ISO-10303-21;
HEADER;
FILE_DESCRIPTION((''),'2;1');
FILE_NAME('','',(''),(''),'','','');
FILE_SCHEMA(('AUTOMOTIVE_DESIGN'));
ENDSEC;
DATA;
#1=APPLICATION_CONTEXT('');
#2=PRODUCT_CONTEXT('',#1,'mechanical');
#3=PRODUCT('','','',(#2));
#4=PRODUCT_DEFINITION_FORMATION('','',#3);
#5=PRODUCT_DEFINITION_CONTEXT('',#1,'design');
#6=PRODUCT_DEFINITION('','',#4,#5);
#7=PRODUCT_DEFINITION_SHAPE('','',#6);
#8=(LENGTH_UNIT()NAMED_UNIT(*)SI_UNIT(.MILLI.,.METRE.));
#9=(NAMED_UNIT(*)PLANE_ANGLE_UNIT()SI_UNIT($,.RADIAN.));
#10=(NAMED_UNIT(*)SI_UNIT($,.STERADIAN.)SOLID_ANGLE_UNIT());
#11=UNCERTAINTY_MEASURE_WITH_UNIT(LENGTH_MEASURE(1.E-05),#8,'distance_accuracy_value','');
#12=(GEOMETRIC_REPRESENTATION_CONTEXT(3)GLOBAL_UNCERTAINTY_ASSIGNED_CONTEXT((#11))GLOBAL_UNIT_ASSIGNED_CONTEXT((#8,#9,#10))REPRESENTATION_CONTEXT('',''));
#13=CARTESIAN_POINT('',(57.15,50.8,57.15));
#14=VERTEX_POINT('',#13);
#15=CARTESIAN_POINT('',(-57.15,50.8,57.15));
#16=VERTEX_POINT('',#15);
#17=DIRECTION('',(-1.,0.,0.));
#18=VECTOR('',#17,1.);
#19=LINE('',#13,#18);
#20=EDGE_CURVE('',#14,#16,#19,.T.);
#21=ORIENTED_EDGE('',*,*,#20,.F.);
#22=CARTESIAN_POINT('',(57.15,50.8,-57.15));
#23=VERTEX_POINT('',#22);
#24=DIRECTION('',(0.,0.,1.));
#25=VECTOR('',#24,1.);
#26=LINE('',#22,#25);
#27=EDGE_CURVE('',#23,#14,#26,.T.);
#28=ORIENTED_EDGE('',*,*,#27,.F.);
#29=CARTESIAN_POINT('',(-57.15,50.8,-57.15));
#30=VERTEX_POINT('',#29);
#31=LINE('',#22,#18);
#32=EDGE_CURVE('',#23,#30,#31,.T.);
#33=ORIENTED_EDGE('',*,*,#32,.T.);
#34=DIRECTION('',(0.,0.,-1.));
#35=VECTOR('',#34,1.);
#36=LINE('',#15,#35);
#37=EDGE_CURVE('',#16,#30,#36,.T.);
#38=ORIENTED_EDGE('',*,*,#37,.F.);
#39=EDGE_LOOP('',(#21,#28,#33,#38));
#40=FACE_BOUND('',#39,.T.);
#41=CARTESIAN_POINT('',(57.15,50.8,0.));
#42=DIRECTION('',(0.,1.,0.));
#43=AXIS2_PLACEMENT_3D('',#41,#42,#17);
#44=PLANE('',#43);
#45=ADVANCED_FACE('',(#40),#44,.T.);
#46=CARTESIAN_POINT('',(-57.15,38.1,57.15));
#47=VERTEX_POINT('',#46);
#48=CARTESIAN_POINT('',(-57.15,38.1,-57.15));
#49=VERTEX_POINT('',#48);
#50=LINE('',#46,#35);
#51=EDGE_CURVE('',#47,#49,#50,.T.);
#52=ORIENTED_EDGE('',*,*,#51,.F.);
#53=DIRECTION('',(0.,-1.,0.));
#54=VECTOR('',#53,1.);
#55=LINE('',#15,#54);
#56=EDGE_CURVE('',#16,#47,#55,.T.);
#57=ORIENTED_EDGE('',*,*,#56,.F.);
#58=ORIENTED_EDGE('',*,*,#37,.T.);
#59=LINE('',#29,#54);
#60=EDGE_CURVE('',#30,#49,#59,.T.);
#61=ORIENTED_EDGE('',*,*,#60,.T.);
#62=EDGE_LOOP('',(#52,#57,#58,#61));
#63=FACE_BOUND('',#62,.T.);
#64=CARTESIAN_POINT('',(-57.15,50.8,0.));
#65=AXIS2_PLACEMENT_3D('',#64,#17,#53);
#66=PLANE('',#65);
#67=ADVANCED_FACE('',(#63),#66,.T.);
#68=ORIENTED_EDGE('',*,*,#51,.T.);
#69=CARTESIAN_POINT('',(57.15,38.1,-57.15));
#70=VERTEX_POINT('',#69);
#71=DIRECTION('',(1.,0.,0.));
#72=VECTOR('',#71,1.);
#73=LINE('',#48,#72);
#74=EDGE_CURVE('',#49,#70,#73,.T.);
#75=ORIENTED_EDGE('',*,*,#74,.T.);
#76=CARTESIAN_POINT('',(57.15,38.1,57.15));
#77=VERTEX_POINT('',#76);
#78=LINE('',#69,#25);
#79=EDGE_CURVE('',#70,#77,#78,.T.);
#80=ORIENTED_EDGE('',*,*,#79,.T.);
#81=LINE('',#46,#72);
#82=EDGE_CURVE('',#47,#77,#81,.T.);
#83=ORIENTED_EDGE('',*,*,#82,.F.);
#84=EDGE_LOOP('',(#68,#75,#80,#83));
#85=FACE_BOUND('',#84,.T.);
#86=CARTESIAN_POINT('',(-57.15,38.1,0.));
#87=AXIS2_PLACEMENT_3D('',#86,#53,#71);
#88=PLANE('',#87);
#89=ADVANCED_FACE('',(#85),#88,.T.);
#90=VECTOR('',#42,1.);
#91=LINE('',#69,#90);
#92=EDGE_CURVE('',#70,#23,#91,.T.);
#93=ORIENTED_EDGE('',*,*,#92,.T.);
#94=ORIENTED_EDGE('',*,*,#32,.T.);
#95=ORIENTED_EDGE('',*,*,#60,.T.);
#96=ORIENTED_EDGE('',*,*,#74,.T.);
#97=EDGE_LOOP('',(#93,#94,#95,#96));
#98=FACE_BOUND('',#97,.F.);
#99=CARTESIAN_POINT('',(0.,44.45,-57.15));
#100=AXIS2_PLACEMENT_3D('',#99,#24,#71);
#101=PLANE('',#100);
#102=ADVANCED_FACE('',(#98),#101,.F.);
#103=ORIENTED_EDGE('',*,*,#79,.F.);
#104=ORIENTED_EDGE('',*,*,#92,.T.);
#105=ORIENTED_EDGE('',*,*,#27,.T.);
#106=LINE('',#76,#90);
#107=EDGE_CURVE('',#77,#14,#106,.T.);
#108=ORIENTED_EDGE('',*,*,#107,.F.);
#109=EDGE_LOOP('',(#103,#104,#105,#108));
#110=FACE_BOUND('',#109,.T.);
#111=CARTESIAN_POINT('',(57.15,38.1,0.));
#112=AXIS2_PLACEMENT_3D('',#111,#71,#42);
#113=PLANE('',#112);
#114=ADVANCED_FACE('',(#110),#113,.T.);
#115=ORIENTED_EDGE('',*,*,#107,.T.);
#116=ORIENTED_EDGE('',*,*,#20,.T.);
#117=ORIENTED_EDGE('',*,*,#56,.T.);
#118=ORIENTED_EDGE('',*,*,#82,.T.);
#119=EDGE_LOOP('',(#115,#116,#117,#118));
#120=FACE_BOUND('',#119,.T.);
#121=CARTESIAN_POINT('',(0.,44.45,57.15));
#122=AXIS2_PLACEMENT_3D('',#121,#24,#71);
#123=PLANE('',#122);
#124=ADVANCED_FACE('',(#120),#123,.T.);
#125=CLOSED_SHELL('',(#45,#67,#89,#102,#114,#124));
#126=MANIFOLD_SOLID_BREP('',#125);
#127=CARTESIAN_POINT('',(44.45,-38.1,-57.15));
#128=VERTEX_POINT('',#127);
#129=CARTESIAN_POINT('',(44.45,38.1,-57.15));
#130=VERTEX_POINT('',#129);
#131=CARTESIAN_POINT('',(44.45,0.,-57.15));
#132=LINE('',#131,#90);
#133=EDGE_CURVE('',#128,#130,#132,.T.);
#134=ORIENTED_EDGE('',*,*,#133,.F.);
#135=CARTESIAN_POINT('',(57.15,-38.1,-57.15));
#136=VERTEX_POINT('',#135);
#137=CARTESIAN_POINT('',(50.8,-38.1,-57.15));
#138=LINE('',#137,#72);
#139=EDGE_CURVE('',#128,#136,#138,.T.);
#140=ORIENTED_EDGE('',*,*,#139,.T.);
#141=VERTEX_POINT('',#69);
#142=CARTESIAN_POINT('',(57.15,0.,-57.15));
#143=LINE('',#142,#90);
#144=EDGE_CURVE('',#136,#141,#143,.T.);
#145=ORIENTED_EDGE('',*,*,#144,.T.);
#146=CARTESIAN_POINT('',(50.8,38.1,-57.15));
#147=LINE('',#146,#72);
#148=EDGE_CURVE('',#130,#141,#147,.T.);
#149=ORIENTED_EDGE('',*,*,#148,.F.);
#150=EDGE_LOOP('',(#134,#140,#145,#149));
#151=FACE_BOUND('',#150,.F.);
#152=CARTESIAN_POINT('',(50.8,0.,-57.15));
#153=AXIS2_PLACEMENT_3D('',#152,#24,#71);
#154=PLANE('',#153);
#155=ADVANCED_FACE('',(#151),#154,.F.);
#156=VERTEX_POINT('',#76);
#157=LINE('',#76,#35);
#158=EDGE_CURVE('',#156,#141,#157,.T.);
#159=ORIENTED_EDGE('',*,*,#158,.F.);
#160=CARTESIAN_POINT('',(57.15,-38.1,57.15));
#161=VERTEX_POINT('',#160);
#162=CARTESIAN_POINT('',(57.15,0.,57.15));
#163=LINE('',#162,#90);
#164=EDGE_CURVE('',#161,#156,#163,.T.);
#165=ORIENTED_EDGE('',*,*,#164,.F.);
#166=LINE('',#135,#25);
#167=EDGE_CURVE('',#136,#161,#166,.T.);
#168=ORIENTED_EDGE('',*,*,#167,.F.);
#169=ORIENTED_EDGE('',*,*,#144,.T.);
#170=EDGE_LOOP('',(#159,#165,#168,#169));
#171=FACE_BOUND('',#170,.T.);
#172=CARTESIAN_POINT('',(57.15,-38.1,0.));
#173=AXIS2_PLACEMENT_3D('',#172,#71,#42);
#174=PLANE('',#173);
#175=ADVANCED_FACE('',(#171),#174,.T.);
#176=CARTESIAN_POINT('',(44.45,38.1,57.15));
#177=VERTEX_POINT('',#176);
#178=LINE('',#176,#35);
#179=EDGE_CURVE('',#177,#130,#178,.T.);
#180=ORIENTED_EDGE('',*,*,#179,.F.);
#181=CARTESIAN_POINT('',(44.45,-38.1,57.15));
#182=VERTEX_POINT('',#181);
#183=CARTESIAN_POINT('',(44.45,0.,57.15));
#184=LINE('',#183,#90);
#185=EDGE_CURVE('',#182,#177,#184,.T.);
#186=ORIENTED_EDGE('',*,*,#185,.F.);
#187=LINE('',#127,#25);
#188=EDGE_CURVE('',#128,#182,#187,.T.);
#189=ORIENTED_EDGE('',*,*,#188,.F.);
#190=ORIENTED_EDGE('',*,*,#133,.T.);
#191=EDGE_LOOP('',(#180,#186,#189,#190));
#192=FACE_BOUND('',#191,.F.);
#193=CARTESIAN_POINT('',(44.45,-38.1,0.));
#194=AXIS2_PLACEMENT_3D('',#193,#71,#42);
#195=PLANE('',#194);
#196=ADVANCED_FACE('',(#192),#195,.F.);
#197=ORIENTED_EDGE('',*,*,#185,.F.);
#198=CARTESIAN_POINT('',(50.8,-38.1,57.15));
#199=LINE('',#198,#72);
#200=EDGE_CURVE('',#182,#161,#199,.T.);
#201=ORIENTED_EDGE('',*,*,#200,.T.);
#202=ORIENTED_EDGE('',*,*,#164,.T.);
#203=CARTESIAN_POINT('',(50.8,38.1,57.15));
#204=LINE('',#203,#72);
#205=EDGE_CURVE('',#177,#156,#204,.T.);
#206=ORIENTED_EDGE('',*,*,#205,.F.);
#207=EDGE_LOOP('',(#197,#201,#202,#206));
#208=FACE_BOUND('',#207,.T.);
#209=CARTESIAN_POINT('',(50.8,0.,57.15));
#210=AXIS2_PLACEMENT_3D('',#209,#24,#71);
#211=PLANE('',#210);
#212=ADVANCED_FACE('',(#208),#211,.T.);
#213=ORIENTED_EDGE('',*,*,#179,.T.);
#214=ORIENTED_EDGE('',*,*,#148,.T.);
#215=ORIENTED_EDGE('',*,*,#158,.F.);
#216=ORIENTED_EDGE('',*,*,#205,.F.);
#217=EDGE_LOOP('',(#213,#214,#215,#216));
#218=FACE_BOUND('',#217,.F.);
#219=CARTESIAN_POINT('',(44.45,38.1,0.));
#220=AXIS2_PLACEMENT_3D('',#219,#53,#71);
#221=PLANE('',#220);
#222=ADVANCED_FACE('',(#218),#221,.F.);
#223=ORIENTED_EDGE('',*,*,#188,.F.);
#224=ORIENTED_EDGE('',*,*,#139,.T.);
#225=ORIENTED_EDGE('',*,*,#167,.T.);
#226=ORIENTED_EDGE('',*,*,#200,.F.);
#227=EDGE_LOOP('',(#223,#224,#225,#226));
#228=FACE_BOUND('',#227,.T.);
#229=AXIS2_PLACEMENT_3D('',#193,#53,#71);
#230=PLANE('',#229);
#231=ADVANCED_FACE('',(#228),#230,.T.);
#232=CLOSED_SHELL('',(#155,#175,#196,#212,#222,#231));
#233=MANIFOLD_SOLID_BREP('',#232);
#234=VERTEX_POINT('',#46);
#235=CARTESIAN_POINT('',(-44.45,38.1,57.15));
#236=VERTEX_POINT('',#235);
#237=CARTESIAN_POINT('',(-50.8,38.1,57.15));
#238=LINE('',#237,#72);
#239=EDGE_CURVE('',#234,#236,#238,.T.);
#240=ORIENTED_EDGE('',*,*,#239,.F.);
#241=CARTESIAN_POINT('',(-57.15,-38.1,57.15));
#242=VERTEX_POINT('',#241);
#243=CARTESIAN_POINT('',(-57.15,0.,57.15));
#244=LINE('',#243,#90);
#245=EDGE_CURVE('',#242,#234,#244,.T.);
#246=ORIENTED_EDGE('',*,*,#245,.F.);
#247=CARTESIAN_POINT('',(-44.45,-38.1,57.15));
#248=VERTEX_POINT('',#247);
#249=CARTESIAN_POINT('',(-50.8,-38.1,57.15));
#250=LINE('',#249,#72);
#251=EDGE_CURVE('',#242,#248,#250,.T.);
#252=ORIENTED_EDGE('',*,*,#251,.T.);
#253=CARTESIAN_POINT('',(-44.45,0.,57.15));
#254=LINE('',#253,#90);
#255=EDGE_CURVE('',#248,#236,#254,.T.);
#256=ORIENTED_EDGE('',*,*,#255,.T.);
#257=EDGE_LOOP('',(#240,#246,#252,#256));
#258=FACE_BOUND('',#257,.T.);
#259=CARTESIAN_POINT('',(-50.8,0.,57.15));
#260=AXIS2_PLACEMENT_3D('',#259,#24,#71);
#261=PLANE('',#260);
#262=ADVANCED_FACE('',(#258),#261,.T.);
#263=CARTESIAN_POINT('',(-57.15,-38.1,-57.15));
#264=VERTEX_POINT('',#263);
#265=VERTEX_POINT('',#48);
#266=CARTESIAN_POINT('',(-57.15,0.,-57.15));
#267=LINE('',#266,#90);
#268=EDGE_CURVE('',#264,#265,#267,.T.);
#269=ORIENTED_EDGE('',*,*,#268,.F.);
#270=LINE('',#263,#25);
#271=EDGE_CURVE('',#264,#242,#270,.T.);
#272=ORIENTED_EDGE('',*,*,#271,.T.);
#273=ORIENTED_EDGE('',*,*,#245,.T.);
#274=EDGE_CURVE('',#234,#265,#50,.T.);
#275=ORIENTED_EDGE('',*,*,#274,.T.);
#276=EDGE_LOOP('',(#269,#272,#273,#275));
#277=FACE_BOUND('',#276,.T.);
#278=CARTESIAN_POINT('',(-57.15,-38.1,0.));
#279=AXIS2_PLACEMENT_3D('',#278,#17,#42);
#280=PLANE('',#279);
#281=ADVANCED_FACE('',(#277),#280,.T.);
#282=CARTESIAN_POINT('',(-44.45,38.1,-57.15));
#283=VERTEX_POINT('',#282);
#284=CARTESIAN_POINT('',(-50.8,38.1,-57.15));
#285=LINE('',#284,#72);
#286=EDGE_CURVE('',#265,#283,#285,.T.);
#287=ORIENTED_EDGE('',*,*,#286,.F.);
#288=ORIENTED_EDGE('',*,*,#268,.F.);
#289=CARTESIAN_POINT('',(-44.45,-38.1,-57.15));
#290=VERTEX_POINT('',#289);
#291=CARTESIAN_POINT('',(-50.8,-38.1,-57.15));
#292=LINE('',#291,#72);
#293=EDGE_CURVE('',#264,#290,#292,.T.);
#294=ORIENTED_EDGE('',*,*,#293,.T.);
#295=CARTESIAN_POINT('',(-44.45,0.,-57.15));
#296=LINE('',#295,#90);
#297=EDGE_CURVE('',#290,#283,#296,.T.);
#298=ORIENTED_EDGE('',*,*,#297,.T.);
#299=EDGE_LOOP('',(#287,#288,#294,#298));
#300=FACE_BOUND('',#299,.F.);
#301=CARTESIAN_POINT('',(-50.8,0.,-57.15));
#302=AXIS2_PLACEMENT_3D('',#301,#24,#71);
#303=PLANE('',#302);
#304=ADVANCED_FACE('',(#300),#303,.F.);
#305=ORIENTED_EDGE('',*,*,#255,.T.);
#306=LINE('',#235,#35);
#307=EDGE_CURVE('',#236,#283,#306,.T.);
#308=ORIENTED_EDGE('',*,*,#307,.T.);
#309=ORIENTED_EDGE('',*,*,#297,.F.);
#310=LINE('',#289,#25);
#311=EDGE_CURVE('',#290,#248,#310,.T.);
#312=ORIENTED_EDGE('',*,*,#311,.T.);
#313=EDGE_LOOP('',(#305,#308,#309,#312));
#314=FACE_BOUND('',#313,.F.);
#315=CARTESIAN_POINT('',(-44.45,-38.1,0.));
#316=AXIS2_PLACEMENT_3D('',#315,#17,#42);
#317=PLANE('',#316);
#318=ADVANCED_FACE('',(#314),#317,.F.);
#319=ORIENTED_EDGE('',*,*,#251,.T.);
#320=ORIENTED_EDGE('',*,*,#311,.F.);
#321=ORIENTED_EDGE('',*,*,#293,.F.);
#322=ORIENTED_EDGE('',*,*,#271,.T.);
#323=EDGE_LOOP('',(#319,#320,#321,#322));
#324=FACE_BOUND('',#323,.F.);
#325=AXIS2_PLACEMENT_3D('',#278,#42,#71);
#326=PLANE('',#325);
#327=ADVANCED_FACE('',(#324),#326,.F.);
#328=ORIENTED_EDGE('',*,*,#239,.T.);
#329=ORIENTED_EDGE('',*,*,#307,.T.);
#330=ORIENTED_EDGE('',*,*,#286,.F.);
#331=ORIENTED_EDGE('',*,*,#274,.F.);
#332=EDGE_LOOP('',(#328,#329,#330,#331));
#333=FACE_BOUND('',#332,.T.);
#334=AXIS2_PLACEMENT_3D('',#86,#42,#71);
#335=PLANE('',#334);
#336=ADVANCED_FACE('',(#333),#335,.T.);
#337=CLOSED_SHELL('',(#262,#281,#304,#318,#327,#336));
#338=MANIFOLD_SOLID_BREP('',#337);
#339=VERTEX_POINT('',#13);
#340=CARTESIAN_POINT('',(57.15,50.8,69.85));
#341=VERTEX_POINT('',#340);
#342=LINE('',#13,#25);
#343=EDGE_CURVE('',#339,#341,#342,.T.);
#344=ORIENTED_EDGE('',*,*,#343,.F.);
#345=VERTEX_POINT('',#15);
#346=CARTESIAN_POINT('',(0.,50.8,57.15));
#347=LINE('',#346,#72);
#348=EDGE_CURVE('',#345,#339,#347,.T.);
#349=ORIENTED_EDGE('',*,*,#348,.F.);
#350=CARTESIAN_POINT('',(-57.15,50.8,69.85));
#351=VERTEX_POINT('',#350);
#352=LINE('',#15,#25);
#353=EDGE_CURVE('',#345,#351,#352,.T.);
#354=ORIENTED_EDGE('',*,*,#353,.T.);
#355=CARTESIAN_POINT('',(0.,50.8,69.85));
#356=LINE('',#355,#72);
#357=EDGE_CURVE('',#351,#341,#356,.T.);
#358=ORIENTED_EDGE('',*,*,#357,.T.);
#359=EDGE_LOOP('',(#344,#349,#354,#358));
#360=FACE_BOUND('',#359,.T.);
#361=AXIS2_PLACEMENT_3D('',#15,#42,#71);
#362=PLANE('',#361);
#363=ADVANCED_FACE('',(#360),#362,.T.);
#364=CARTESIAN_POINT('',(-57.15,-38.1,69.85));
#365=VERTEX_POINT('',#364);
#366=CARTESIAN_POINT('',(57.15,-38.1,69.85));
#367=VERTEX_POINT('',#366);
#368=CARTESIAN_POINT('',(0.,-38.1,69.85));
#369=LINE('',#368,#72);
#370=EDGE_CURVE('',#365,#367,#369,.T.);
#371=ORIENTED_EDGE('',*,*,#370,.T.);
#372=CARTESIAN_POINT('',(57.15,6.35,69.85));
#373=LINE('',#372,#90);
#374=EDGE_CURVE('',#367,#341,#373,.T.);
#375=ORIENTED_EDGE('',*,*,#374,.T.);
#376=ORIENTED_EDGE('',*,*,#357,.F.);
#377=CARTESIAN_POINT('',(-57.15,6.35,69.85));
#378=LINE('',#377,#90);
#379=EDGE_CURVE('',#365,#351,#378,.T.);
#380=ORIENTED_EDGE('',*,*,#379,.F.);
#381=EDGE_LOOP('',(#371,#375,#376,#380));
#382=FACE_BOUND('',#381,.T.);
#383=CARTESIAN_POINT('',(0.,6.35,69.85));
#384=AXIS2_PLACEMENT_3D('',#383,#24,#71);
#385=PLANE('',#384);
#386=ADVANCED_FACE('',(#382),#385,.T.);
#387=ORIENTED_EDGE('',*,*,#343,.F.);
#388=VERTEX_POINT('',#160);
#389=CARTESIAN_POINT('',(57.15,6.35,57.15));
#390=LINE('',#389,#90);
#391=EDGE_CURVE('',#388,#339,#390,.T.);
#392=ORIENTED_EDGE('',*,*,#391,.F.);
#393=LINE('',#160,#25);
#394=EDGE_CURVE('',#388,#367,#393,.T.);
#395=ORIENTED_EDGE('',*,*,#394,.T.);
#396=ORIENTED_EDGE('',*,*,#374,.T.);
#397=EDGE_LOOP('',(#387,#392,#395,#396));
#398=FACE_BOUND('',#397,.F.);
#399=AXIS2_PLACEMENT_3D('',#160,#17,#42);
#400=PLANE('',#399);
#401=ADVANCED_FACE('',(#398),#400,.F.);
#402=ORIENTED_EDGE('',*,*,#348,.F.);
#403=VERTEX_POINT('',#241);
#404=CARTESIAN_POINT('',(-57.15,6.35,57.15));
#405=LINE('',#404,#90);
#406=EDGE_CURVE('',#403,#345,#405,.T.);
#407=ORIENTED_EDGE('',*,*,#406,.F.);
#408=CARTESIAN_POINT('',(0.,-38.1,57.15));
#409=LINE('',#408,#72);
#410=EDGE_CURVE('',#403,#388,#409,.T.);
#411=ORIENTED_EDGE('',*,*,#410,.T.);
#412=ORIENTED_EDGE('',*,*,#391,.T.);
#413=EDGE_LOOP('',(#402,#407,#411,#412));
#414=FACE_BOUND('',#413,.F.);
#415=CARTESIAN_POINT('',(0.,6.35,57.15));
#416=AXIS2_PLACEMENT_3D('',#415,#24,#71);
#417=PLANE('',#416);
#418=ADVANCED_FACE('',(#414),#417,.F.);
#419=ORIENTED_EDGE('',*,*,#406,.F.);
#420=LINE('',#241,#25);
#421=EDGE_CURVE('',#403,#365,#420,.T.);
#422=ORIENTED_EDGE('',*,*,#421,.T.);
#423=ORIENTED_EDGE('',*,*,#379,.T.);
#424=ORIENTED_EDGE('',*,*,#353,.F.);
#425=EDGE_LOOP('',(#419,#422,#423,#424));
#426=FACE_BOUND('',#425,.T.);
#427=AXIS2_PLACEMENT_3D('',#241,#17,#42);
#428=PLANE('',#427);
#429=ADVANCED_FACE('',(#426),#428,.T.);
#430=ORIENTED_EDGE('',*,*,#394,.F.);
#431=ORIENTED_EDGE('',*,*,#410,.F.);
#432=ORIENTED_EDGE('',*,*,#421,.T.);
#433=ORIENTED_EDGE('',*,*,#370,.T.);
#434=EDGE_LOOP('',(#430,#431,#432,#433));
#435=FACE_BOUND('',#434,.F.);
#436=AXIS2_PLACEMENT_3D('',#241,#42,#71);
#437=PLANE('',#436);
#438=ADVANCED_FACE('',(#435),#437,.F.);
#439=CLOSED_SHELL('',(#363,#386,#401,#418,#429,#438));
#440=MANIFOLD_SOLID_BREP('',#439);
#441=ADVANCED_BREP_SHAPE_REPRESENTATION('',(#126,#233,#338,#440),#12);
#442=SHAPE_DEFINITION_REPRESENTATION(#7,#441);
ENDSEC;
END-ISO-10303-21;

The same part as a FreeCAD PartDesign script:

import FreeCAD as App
import Part
import Sketcher
Q = App.Units.Quantity


def add_polygon(sketch, points):
    """Adds a closed chain of lines whose ends are joined by coincident constraints."""
    first, n = sketch.GeometryCount, len(points)
    for a, b in zip(points, points[1:] + points[:1]):
        sketch.addGeometry(Part.LineSegment(App.Vector(*a, 0), App.Vector(*b, 0)), False)
    for i in range(n):
        sketch.addConstraint(Sketcher.Constraint("Coincident", first + i, 2, first + (i + 1) % n, 1))

doc = App.newDocument("Part")
body = doc.addObject("PartDesign::Body", "Body")
body.AllowCompound = True

sketch1 = doc.addObject("Sketcher::SketchObject", "Sketch")
body.addObject(sketch1)
sketch1.AttachmentSupport = (doc.XY_Plane, [""])
sketch1.MapMode = "FlatFace"
add_polygon(sketch1, [(-57, 38), (-57, -38), (-44, -38), (-44, 38)])
add_polygon(sketch1, [(44, 38), (44, -38), (57, -38), (57, 38)])
sketch1.addConstraint([
    Sketcher.Constraint("Vertical", 0),
    Sketcher.Constraint("Horizontal", 1),
    Sketcher.Constraint("Vertical", 2),
    Sketcher.Constraint("Horizontal", 3),
    Sketcher.Constraint("Vertical", 4),
    Sketcher.Constraint("Horizontal", 5),
    Sketcher.Constraint("Vertical", 6),
    Sketcher.Constraint("Horizontal", 7),
    Sketcher.Constraint("Symmetric", 2, 2, 4, 2, -1, 1),
    Sketcher.Constraint("Symmetric", 0, 2, 6, 2, -1, 1),
    Sketcher.Constraint("Horizontal", 1, 2, 4, 2),
    Sketcher.Constraint("DistanceY", 0, 2, 0, 1, Q("3 in")),
    Sketcher.Constraint("DistanceX", 1, 1, 1, 2, Q("0.5 in")),
    Sketcher.Constraint("DistanceX", 0, 2, 4, 2, Q("4 in")),
])
pad1 = doc.addObject("PartDesign::Pad", "Pad")
body.addObject(pad1)
pad1.Profile = sketch1
pad1.Length = Q("4.5 in")
pad1.Midplane = True
body2 = doc.addObject("PartDesign::Body", "Body001")

sketch2 = doc.addObject("Sketcher::SketchObject", "Sketch001")
body2.addObject(sketch2)
sketch2.AttachmentSupport = (doc.getObject("XY_Plane001"), [""])
sketch2.MapMode = "FlatFace"
add_polygon(sketch2, [(-57, 38), (57, 38), (57, 51), (-57, 51)])
sketch2.addConstraint([
    Sketcher.Constraint("Horizontal", 0),
    Sketcher.Constraint("Vertical", 1),
    Sketcher.Constraint("Horizontal", 2),
    Sketcher.Constraint("Vertical", 3),
    Sketcher.Constraint("DistanceX", 0, 1, 0, 2, Q("4.5 in")),
    Sketcher.Constraint("DistanceY", 1, 1, 1, 2, Q("0.5 in")),
    Sketcher.Constraint("DistanceY", -1, 1, 1, 2, Q("2 in")),
    Sketcher.Constraint("DistanceX", -1, 1, 0, 2, Q("2.25 in")),
])
pad2 = doc.addObject("PartDesign::Pad", "Pad001")
body2.addObject(pad2)
pad2.Profile = sketch2
pad2.Length = Q("4.5 in")
pad2.Midplane = True
body3 = doc.addObject("PartDesign::Body", "Body002")

sketch3 = doc.addObject("Sketcher::SketchObject", "Sketch002")
body3.addObject(sketch3)
sketch3.AttachmentSupport = (doc.getObject("XY_Plane002"), [""])
sketch3.MapMode = "FlatFace"
sketch3.AttachmentOffset = App.Placement(App.Vector(0, 0, 2.25 * 25.4), App.Rotation())
add_polygon(sketch3, [(-57, 51), (-57, -38), (57, -38), (57, 51)])
sketch3.addConstraint([
    Sketcher.Constraint("Vertical", 0),
    Sketcher.Constraint("Horizontal", 1),
    Sketcher.Constraint("Vertical", 2),
    Sketcher.Constraint("Horizontal", 3),
    Sketcher.Constraint("DistanceX", 1, 1, 1, 2, Q("4.5 in")),
    Sketcher.Constraint("DistanceY", 0, 2, 0, 1, Q("3.5 in")),
    Sketcher.Constraint("DistanceY", -1, 1, 2, 2, Q("2 in")),
    Sketcher.Constraint("DistanceX", 0, 2, -1, 1, Q("2.25 in")),
])
pad3 = doc.addObject("PartDesign::Pad", "Pad002")
body3.addObject(pad3)
pad3.Profile = sketch3
pad3.Length = Q("0.5 in")

doc.recompute()
